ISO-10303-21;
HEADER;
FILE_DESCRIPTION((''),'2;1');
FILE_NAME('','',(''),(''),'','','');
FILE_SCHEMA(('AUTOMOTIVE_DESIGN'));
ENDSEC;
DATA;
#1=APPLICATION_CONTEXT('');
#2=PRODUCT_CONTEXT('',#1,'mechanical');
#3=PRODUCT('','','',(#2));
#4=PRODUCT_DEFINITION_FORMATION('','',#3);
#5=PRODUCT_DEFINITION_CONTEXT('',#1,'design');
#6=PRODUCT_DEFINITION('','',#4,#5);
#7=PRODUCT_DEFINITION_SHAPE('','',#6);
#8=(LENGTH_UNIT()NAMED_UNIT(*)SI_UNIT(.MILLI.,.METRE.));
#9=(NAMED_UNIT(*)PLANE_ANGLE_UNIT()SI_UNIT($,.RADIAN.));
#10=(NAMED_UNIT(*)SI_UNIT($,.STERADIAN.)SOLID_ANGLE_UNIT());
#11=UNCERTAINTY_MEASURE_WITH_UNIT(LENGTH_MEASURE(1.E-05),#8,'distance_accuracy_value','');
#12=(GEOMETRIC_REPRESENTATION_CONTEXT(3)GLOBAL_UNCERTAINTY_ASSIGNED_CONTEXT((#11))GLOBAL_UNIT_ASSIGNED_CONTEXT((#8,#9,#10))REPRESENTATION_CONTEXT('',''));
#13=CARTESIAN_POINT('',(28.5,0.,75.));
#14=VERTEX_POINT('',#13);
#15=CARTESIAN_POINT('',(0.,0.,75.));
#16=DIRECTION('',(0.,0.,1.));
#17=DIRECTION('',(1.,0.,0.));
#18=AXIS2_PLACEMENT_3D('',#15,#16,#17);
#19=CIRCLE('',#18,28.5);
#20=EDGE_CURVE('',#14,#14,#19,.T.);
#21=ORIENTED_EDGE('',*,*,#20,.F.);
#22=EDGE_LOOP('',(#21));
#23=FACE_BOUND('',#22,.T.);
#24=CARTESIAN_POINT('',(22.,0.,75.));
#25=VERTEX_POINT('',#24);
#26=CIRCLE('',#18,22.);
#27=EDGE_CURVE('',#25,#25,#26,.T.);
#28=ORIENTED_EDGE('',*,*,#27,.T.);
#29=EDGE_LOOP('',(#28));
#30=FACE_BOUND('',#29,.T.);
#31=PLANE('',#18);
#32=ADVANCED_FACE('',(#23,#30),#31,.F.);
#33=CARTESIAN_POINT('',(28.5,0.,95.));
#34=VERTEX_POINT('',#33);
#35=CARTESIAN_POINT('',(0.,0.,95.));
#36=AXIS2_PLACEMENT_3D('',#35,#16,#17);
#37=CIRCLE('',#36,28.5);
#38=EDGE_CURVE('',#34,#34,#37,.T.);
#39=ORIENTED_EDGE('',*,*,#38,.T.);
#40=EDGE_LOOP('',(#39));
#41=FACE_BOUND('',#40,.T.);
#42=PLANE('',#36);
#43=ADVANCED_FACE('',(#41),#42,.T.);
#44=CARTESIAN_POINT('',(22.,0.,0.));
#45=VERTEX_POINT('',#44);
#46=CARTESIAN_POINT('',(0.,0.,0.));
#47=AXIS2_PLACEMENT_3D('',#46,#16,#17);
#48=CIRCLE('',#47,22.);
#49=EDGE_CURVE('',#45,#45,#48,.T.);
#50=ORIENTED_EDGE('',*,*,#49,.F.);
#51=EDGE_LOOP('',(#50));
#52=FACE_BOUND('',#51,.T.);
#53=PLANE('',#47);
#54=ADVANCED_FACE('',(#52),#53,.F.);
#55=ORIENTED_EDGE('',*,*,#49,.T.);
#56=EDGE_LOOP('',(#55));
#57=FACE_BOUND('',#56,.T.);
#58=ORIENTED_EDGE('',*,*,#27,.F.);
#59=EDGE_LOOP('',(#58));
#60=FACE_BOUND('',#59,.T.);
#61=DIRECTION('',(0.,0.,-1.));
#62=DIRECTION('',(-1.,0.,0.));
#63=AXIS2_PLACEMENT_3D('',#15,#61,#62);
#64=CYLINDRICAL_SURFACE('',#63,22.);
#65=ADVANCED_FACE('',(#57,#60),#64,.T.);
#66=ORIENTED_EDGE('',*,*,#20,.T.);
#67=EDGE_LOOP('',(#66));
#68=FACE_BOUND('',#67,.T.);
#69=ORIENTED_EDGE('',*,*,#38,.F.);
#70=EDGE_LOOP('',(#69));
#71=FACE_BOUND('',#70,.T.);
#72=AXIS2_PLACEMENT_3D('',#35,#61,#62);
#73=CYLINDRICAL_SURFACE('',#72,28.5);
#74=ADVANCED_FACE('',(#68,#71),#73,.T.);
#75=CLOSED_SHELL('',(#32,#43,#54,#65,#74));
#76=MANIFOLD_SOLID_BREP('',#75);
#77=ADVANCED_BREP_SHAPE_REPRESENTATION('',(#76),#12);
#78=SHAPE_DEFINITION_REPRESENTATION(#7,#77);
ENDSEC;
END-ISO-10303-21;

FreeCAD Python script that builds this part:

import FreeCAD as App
import Part
import Sketcher

V = App.Vector
Q = App.Units.Quantity

doc = App.newDocument("Part")
params = doc.addObject("Spreadsheet::Sheet", "Params")
for row, (alias, value) in enumerate([
    ("sketch1_diameter", "44 mm"),
    ("pad1_length", "75 mm"),
    ("sketch2_diameter", "57 mm"),
    ("pad2_length", "20 mm"),
], start=1):
    params.set(f"A{row}", alias)
    params.set(f"B{row}", "=" + value)
    params.setAlias(f"B{row}", alias)

body = doc.addObject("PartDesign::Body", "Body")

# Sketch on XY plane
sketch1 = body.newObject("Sketcher::SketchObject", "Sketch")
sketch1.AttachmentSupport = (doc.getObject("XY_Plane"), [""])
sketch1.MapMode = "FlatFace"
sketch1.addGeometry(Part.Circle(V(0, 0, 0), V(0, 0, 1), 22), False)
sketch1.addConstraint([
    Sketcher.Constraint("Coincident", 0, 3, -1, 1),
    Sketcher.Constraint("Diameter", 0, Q("44 mm")),
])
sketch1.setExpression("Constraints[1]", "Params.sketch1_diameter")
pad1 = body.newObject("PartDesign::Pad", "Pad")
pad1.Profile = sketch1
pad1.setExpression("Length", "Params.pad1_length")

# Sketch on XY plane
sketch2 = body.newObject("Sketcher::SketchObject", "Sketch001")
sketch2.AttachmentSupport = (doc.getObject("XY_Plane"), [""])
sketch2.MapMode = "FlatFace"
sketch2.AttachmentOffset = App.Placement(V(0, 0, 75), App.Rotation())
sketch2.addGeometry(Part.Circle(V(0, 0, 0), V(0, 0, 1), 28.5), False)
sketch2.addConstraint([
    Sketcher.Constraint("Coincident", 0, 3, -1, 1),
    Sketcher.Constraint("Diameter", 0, Q("57 mm")),
])
sketch2.setExpression("Constraints[1]", "Params.sketch2_diameter")
pad2 = body.newObject("PartDesign::Pad", "Pad001")
pad2.Profile = sketch2
pad2.setExpression("Length", "Params.pad2_length")

doc.recompute()
